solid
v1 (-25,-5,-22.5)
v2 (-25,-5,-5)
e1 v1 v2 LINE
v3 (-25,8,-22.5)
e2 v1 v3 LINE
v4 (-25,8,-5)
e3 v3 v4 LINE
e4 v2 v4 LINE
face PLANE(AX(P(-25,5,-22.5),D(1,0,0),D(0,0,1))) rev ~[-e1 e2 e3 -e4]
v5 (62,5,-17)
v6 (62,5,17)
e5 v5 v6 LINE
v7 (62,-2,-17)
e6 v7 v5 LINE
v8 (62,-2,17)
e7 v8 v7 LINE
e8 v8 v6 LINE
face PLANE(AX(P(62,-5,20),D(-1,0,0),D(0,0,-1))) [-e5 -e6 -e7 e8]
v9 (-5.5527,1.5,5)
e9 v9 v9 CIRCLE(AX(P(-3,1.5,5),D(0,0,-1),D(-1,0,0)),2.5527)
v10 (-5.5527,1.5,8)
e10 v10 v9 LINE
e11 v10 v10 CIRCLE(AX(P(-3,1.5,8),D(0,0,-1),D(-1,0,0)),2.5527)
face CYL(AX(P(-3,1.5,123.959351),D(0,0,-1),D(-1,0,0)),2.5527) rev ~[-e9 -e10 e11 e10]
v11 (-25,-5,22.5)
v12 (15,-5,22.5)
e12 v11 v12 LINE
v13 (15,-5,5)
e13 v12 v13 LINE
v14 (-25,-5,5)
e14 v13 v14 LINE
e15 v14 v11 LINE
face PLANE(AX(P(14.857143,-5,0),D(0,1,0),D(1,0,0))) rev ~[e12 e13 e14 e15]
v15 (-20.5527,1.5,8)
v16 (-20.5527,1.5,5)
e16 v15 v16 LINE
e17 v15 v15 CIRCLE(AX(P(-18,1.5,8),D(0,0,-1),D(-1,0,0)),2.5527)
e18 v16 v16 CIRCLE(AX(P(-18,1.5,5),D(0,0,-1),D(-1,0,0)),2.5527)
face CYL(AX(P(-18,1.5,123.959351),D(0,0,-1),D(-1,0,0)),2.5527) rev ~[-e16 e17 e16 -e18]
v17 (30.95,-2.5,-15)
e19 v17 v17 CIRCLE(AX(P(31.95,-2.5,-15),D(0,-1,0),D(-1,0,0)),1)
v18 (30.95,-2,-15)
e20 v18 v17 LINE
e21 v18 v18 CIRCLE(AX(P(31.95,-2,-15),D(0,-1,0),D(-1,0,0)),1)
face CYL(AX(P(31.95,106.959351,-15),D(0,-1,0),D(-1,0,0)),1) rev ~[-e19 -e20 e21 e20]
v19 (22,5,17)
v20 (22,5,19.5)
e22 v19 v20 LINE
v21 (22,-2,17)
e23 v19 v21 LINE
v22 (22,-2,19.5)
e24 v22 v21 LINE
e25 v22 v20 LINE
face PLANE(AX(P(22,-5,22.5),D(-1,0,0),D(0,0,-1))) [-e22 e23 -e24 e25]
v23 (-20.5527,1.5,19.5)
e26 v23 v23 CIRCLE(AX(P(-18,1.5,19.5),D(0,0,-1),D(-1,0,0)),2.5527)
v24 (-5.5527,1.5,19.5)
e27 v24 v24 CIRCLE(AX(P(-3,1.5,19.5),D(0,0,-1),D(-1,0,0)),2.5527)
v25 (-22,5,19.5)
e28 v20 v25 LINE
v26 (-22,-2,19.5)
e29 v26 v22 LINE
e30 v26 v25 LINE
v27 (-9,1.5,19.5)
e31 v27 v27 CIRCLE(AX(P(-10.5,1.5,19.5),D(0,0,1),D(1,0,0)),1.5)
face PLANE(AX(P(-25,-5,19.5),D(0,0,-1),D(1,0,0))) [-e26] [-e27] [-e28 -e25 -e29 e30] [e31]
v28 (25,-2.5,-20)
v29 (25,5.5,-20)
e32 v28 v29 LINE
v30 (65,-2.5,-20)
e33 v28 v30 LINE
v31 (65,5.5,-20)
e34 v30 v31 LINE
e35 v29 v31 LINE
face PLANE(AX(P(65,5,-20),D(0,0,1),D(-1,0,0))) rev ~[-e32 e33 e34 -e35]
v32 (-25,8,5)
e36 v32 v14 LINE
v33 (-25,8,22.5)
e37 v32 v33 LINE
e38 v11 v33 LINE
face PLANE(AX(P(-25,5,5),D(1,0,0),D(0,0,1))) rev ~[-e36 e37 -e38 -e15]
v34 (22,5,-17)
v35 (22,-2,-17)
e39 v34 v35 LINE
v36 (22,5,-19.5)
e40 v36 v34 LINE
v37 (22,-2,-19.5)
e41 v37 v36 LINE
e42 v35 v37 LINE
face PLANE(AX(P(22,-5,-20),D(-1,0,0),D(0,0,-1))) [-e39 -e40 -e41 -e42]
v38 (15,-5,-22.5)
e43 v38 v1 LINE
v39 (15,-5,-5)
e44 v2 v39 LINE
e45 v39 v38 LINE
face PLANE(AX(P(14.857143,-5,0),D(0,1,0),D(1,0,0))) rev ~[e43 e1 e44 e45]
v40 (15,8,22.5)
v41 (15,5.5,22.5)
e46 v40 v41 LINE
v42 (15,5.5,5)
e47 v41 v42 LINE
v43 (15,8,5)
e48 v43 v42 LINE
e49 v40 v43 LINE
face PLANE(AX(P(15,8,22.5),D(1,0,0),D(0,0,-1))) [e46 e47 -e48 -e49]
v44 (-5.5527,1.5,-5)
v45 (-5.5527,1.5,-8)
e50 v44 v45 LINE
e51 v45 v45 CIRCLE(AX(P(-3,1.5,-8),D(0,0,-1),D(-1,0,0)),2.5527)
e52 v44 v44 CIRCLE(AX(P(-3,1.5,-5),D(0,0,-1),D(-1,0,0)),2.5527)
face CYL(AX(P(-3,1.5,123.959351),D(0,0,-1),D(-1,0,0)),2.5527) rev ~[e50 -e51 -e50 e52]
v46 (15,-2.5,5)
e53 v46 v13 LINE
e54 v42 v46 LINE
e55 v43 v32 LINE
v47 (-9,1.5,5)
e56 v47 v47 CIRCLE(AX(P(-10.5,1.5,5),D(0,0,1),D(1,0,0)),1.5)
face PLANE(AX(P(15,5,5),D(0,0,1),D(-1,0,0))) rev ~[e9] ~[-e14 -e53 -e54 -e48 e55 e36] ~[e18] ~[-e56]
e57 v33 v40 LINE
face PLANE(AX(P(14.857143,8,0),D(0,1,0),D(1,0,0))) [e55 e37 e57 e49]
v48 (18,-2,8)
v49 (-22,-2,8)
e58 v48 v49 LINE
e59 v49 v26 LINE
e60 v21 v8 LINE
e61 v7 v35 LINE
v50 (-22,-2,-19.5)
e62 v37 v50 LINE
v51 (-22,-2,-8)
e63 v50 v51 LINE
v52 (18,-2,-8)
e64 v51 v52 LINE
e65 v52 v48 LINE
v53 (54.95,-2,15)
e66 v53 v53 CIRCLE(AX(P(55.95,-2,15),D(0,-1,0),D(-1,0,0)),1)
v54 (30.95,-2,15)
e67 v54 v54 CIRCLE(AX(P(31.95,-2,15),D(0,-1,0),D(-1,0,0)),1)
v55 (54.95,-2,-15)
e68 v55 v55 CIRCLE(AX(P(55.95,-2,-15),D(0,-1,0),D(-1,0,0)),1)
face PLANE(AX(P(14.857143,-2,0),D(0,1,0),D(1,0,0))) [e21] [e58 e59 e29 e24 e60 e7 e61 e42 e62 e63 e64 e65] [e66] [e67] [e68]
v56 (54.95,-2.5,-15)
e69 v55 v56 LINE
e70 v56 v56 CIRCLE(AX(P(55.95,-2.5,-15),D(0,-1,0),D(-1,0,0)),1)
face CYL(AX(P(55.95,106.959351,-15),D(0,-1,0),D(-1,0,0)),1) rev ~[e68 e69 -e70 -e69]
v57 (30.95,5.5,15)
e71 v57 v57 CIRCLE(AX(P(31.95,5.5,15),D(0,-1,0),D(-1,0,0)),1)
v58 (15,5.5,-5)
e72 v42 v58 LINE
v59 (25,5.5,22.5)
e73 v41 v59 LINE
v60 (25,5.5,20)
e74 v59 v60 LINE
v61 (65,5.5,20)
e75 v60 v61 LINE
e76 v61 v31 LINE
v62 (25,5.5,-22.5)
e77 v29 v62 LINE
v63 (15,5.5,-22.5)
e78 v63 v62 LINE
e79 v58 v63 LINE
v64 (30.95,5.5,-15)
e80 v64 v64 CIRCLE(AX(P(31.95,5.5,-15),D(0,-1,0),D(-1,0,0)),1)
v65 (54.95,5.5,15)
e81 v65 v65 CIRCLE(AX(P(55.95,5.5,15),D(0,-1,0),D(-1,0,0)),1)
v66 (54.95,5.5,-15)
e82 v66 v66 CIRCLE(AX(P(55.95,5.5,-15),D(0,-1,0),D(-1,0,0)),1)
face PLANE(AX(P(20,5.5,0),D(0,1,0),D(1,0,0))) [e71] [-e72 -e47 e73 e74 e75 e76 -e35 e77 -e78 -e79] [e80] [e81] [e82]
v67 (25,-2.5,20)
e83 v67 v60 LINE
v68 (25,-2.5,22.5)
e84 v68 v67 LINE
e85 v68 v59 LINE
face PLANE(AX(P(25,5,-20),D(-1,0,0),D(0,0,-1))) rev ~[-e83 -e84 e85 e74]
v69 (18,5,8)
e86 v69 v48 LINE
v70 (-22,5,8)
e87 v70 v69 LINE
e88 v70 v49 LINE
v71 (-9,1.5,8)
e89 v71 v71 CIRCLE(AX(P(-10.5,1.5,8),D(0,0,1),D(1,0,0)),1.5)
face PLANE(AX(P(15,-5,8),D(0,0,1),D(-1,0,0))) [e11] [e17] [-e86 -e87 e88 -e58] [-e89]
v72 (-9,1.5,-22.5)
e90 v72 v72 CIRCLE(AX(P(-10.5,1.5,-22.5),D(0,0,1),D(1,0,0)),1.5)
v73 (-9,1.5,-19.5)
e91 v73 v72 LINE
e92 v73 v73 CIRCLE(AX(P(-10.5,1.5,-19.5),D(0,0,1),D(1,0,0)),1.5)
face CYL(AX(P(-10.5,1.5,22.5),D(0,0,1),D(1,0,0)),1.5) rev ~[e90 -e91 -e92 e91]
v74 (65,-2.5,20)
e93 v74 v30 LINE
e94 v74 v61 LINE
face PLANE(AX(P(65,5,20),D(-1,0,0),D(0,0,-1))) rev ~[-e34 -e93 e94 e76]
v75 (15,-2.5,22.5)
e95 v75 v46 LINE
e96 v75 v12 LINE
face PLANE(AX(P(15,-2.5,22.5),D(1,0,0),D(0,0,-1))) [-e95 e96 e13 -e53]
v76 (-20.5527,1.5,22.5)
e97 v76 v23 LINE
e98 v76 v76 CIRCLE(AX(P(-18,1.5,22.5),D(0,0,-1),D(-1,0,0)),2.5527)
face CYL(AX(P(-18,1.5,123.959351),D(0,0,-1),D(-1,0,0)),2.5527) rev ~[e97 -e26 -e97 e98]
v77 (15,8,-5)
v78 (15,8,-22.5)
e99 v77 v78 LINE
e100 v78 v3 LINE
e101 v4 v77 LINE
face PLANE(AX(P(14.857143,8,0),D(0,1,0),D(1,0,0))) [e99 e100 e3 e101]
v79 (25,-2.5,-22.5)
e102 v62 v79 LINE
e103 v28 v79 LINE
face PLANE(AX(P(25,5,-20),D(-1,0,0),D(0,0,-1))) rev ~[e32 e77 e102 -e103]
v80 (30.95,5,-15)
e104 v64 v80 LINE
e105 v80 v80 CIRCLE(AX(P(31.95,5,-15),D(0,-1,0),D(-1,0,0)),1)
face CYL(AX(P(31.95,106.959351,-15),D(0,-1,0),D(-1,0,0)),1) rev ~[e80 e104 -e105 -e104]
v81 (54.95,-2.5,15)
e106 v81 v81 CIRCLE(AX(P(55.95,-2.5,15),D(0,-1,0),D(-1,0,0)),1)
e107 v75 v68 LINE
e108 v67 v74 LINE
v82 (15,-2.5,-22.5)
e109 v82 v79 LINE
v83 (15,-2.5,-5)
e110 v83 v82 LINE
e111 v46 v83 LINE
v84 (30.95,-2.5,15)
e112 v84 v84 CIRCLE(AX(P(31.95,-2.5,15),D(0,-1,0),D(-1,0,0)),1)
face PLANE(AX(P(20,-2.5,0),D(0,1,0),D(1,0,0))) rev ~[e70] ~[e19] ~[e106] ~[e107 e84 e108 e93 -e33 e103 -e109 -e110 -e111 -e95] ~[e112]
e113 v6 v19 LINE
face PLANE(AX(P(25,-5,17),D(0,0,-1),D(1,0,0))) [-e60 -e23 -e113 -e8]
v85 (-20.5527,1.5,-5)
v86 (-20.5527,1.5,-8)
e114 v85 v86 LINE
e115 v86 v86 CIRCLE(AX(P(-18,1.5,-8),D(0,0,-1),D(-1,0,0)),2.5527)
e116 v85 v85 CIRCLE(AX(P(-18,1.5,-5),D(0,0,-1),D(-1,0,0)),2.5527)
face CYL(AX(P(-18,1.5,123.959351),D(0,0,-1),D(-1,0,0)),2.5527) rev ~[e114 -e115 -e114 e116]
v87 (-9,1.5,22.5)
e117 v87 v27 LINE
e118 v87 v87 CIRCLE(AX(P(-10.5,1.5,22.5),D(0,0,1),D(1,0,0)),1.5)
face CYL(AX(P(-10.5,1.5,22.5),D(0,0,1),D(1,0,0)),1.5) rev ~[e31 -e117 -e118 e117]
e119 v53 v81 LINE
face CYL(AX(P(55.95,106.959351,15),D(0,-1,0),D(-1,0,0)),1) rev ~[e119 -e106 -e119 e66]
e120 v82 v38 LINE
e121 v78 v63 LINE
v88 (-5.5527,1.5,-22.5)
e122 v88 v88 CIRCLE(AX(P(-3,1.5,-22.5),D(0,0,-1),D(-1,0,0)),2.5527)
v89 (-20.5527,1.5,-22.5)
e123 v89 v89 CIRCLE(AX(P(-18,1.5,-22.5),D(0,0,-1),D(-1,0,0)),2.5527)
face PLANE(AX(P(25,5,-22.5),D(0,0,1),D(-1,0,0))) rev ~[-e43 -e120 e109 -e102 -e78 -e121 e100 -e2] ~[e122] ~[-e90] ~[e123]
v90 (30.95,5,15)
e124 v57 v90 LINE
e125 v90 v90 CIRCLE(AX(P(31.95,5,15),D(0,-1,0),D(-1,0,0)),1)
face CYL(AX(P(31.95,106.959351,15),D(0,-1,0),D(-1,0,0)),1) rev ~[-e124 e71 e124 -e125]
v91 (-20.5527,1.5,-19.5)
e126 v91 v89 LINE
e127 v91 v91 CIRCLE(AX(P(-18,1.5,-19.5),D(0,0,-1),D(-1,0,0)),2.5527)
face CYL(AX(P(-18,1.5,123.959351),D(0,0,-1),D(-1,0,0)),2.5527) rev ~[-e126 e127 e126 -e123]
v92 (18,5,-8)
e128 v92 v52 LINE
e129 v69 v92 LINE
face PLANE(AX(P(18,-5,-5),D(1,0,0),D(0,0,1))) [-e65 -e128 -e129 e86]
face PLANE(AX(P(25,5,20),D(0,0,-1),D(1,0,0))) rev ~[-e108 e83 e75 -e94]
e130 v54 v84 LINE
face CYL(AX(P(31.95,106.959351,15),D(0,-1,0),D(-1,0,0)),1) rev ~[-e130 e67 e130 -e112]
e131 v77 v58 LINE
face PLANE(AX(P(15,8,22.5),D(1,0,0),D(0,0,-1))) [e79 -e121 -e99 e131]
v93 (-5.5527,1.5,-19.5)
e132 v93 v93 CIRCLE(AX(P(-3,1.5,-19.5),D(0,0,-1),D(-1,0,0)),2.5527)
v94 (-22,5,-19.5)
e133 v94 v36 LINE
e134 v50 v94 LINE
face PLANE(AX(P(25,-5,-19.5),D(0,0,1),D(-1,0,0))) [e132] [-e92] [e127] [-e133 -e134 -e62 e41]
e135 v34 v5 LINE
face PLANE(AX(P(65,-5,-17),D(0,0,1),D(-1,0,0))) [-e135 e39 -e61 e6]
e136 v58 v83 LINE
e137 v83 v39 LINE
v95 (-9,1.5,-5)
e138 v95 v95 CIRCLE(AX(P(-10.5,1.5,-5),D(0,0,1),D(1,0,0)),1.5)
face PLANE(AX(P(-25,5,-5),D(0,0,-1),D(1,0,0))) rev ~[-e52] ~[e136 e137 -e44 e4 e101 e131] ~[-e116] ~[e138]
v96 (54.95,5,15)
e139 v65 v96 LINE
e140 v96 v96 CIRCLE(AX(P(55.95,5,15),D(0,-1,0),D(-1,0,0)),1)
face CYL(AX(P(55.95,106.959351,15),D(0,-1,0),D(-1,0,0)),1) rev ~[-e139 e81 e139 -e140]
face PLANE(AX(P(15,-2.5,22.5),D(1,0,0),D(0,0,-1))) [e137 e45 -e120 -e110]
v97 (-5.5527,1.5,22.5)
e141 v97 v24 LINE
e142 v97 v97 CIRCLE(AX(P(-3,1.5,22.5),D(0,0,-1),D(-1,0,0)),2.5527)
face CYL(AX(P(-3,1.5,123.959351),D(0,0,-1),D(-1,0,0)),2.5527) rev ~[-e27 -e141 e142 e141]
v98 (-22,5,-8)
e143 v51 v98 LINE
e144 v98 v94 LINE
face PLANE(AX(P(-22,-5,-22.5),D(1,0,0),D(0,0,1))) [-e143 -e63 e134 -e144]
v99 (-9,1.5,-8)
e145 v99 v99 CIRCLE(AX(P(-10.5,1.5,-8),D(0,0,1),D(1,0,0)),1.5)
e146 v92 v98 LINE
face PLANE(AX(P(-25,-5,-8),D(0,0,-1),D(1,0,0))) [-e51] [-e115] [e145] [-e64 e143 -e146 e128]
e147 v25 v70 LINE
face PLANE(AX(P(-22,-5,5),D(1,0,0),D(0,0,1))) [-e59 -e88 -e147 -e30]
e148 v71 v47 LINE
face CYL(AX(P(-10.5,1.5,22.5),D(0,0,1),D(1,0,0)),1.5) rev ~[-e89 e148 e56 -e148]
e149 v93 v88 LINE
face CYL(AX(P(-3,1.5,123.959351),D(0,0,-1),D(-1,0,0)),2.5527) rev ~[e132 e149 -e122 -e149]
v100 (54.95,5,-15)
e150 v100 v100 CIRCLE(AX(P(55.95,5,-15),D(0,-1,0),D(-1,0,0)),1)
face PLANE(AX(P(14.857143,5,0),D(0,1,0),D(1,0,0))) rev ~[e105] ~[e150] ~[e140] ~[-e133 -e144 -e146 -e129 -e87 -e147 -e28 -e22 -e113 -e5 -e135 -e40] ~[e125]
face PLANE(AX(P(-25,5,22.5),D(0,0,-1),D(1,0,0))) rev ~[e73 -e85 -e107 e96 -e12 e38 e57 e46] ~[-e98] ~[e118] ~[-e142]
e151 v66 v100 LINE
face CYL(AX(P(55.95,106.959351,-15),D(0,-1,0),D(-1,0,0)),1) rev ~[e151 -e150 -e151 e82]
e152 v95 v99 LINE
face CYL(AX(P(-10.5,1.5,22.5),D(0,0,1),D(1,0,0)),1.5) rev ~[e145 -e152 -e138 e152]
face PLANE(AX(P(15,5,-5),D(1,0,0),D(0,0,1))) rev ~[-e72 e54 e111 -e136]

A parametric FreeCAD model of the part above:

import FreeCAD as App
import Part
import Sketcher

V = App.Vector


def faces_at(feature, points):
    """Names of the faces that lie closest to the given points."""
    faces = feature.Shape.Faces
    near = lambda p: min(range(len(faces)), key=lambda i: faces[i].distToShape(Part.Vertex(*p))[0])
    return sorted({f"Face{near(p) + 1}" for p in points})


def add_polygon(sketch, points):
    """Adds a closed chain of lines whose ends are joined by coincident constraints."""
    first, n = sketch.GeometryCount, len(points)
    for a, b in zip(points, points[1:] + points[:1]):
        sketch.addGeometry(Part.LineSegment(App.Vector(*a, 0), App.Vector(*b, 0)), False)
    for i in range(n):
        sketch.addConstraint(Sketcher.Constraint("Coincident", first + i, 2, first + (i + 1) % n, 1))

doc = App.newDocument("Part")
body = doc.addObject("PartDesign::Body", "Body")

sketch1 = body.newObject("Sketcher::SketchObject", "Sketch")
sketch1.AttachmentSupport = (doc.getObject("XZ_Plane"), [""])
sketch1.MapMode = "FlatFace"
add_polygon(sketch1, [(-25, 5), (-25, 22.5), (25, 22.5), (25, 20), (65, 20), (65, -20), (25, -20), (25, -22.5), (-25, -22.5), (-25, -5), (15, -5), (15, 5)])
sketch1.addConstraint(Sketcher.Constraint("Vertical", 0))
sketch1.addConstraint(Sketcher.Constraint("Horizontal", 1))
sketch1.addConstraint(Sketcher.Constraint("Vertical", 2))
sketch1.addConstraint(Sketcher.Constraint("Horizontal", 3))
sketch1.addConstraint(Sketcher.Constraint("Vertical", 4))
sketch1.addConstraint(Sketcher.Constraint("Horizontal", 5))
sketch1.addConstraint(Sketcher.Constraint("Vertical", 6))
sketch1.addConstraint(Sketcher.Constraint("Horizontal", 7))
sketch1.addConstraint(Sketcher.Constraint("Vertical", 8))
sketch1.addConstraint(Sketcher.Constraint("Horizontal", 9))
sketch1.addConstraint(Sketcher.Constraint("Vertical", 10))
sketch1.addConstraint(Sketcher.Constraint("Horizontal", 11))
sketch1.addConstraint(Sketcher.Constraint("Symmetric", 0, 2, 6, 2, -1, 1))
sketch1.addConstraint(Sketcher.Constraint("Symmetric", 2, 2, 5, 2, -1))
sketch1.addConstraint(Sketcher.Constraint("Symmetric", 8, 2, 11, 2, -1))
sketch1.addConstraint(Sketcher.Constraint("Equal", 5, 9))
sketch1.addConstraint(Sketcher.Constraint("Equal", 11, 4))
sketch1.addConstraint(Sketcher.Constraint("DistanceX", 1, 1, 1, 2, 50.0))
sketch1.addConstraint(Sketcher.Constraint("DistanceX", 3, 1, 3, 2, 40.0))
sketch1.addConstraint(Sketcher.Constraint("DistanceY", 10, 1, 10, 2, 10.0))
sketch1.addConstraint(Sketcher.Constraint("DistanceY", 0, 1, 0, 2, 17.5))
pad1 = body.newObject("PartDesign::Pad", "Pad")
pad1.Profile = sketch1
pad1.Type = "TwoLengths"
pad1.Length = 5
pad1.Length2 = 5
pad1.Reversed = True
doc.recompute()

thickness = body.newObject("PartDesign::Thickness", "Thickness")
thickness.Base = (pad1, faces_at(pad1, [(20, 5, 0)]))
thickness.Value = 3
thickness.Reversed = True
thickness.Join = "Intersection"

sketch2 = body.newObject("Sketcher::SketchObject", "Sketch001")
sketch2.AttachmentSupport = (doc.getObject("XZ_Plane"), [""])
sketch2.MapMode = "FlatFace"
sketch2.AttachmentOffset = App.Placement(V(0, 0, -5), App.Rotation())
add_polygon(sketch2, [(-25, 5), (-25, 22.5), (25, 22.5), (25, 20), (65, 20), (65, -20), (25, -20), (25, -22.5), (-25, -22.5), (-25, -5), (15, -5), (15, 5)])
sketch2.addConstraint(Sketcher.Constraint("Vertical", 0))
sketch2.addConstraint(Sketcher.Constraint("Horizontal", 1))
sketch2.addConstraint(Sketcher.Constraint("Vertical", 2))
sketch2.addConstraint(Sketcher.Constraint("Horizontal", 3))
sketch2.addConstraint(Sketcher.Constraint("Vertical", 4))
sketch2.addConstraint(Sketcher.Constraint("Horizontal", 5))
sketch2.addConstraint(Sketcher.Constraint("Vertical", 6))
sketch2.addConstraint(Sketcher.Constraint("Horizontal", 7))
sketch2.addConstraint(Sketcher.Constraint("Vertical", 8))
sketch2.addConstraint(Sketcher.Constraint("Horizontal", 9))
sketch2.addConstraint(Sketcher.Constraint("Vertical", 10))
sketch2.addConstraint(Sketcher.Constraint("Horizontal", 11))
sketch2.addConstraint(Sketcher.Constraint("Symmetric", 0, 2, 6, 2, -1, 1))
sketch2.addConstraint(Sketcher.Constraint("Symmetric", 2, 2, 5, 2, -1))
sketch2.addConstraint(Sketcher.Constraint("Symmetric", 8, 2, 11, 2, -1))
sketch2.addConstraint(Sketcher.Constraint("Equal", 5, 9))
sketch2.addConstraint(Sketcher.Constraint("Equal", 11, 4))
sketch2.addConstraint(Sketcher.Constraint("DistanceX", 1, 1, 1, 2, 50.0))
sketch2.addConstraint(Sketcher.Constraint("DistanceX", 3, 1, 3, 2, 40.0))
sketch2.addConstraint(Sketcher.Constraint("DistanceY", 10, 1, 10, 2, 10.0))
sketch2.addConstraint(Sketcher.Constraint("DistanceY", 0, 1, 0, 2, 17.5))
pad2 = body.newObject("PartDesign::Pad", "Pad001")
pad2.Profile = sketch2
pad2.Length = 3
pad2.Reversed = True

sketch3 = body.newObject("Sketcher::SketchObject", "Sketch002")
sketch3.AttachmentSupport = (doc.getObject("XY_Plane"), [""])
sketch3.MapMode = "FlatFace"
sketch3.AttachmentOffset = App.Placement(V(0, 0, 22.5), App.Rotation())
sketch3.addGeometry(Part.Circle(V(-10.5, 1.5, 0), V(0, 0, 1), 1.5), False)
sketch3.addConstraint(Sketcher.Constraint("Diameter", 0, 3.0))
sketch3.addConstraint(Sketcher.Constraint("DistanceX", 0, 3, -1, 1, 10.5))
sketch3.addConstraint(Sketcher.Constraint("DistanceY", -1, 1, 0, 3, 1.5))
pocket1 = body.newObject("PartDesign::Pocket", "Pocket")
pocket1.Profile = sketch3
pocket1.Length = 100

sketch4 = body.newObject("Sketcher::SketchObject", "Sketch003")
sketch4.AttachmentSupport = (doc.getObject("XY_Plane"), [""])
sketch4.MapMode = "FlatFace"
sketch4.AttachmentOffset = App.Placement(V(0, 0, 22.5), App.Rotation())
sketch4.addGeometry(Part.Circle(V(-3, 1.5, 0), V(0, 0, 1), 2.6), False)
sketch4.addGeometry(Part.Circle(V(-18, 1.5, 0), V(0, 0, 1), 2.6), False)
sketch4.addConstraint(Sketcher.Constraint("Equal", 0, 1))
sketch4.addConstraint(Sketcher.Constraint("Horizontal", 0, 3, 1, 3))
sketch4.addConstraint(Sketcher.Constraint("DistanceX", 0, 3, -1, 1, 3.0))
sketch4.addConstraint(Sketcher.Constraint("DistanceX", 1, 3, -1, 1, 18.0))
sketch4.addConstraint(Sketcher.Constraint("Diameter", 0, 5.1054))
sketch4.addConstraint(Sketcher.Constraint("DistanceY", -1, 1, 0, 3, 1.5))
doc.recompute()
hole = body.newObject("PartDesign::Hole", "Hole")
hole.Profile = sketch4
hole.ThreadType = "None"
hole.Diameter = 5.1054
hole.DepthType = "ThroughAll"

sketch5 = body.newObject("Sketcher::SketchObject", "Sketch004")
sketch5.AttachmentSupport = (doc.getObject("XY_Plane"), [""])
sketch5.MapMode = "FlatFace"
sketch5.AttachmentOffset = App.Placement(V(0, 0, 20), App.Rotation())
add_polygon(sketch5, [(25, 8), (25, 5.5), (65, 5.5), (65, 8)])
add_polygon(sketch5, [(25, -2.5), (25, -5), (65, -5), (65, -2.5)])
sketch5.addConstraint(Sketcher.Constraint("Vertical", 0))
sketch5.addConstraint(Sketcher.Constraint("Horizontal", 1))
sketch5.addConstraint(Sketcher.Constraint("Vertical", 2))
sketch5.addConstraint(Sketcher.Constraint("Horizontal", 3))
sketch5.addConstraint(Sketcher.Constraint("Vertical", 4))
sketch5.addConstraint(Sketcher.Constraint("Horizontal", 5))
sketch5.addConstraint(Sketcher.Constraint("Vertical", 6))
sketch5.addConstraint(Sketcher.Constraint("Horizontal", 7))
sketch5.addConstraint(Sketcher.Constraint("Vertical", 3, 2, 4, 2))
sketch5.addConstraint(Sketcher.Constraint("Vertical", 2, 2, 5, 2))
sketch5.addConstraint(Sketcher.Constraint("Equal", 2, 4))
sketch5.addConstraint(Sketcher.Constraint("DistanceX", 1, 1, 1, 2, 40.0))
sketch5.addConstraint(Sketcher.Constraint("DistanceY", 0, 2, 0, 1, 2.5))
sketch5.addConstraint(Sketcher.Constraint("DistanceX", -1, 1, 0, 2, 25.0))
sketch5.addConstraint(Sketcher.Constraint("DistanceY", -1, 1, 2, 2, 8.0))
sketch5.addConstraint(Sketcher.Constraint("DistanceY", 4, 2, -1, 1, 5.0))
pocket2 = body.newObject("PartDesign::Pocket", "Pocket001")
pocket2.Profile = sketch5
pocket2.Type = "ThroughAll"

sketch6 = body.newObject("Sketcher::SketchObject", "Sketch005")
sketch6.AttachmentSupport = (doc.getObject("XZ_Plane"), [""])
sketch6.MapMode = "FlatFace"
sketch6.AttachmentOffset = App.Placement(V(0, 0, -8), App.Rotation())
add_polygon(sketch6, [(15, -22), (15, 22), (25, 22), (25, -22)])
sketch6.addConstraint(Sketcher.Constraint("Vertical", 0))
sketch6.addConstraint(Sketcher.Constraint("Horizontal", 1))
sketch6.addConstraint(Sketcher.Constraint("Vertical", 2))
sketch6.addConstraint(Sketcher.Constraint("Horizontal", 3))
sketch6.addConstraint(Sketcher.Constraint("DistanceX", 1, 1, 1, 2, 10.0))
sketch6.addConstraint(Sketcher.Constraint("DistanceY", 0, 1, 0, 2, 45.0))
sketch6.addConstraint(Sketcher.Constraint("DistanceX", -1, 1, 0, 2, 15.0))
sketch6.addConstraint(Sketcher.Constraint("DistanceY", -1, 1, 0, 2, 22.5))
pocket3 = body.newObject("PartDesign::Pocket", "Pocket002")
pocket3.Profile = sketch6
pocket3.Length = 2.5
pocket3.Reversed = True

sketch7 = body.newObject("Sketcher::SketchObject", "Sketch006")
sketch7.AttachmentSupport = (doc.getObject("XZ_Plane"), [""])
sketch7.MapMode = "FlatFace"
sketch7.AttachmentOffset = App.Placement(V(0, 0, 2.5), App.Rotation())
add_polygon(sketch7, [(15, -22), (15, 22), (25, 22), (25, -22)])
sketch7.addConstraint(Sketcher.Constraint("Vertical", 0))
sketch7.addConstraint(Sketcher.Constraint("Horizontal", 1))
sketch7.addConstraint(Sketcher.Constraint("Vertical", 2))
sketch7.addConstraint(Sketcher.Constraint("Horizontal", 3))
sketch7.addConstraint(Sketcher.Constraint("DistanceX", 1, 1, 1, 2, 10.0))
sketch7.addConstraint(Sketcher.Constraint("DistanceY", 0, 1, 0, 2, 45.0))
sketch7.addConstraint(Sketcher.Constraint("DistanceX", -1, 1, 0, 2, 15.0))
sketch7.addConstraint(Sketcher.Constraint("DistanceY", -1, 1, 0, 2, 22.5))
pocket4 = body.newObject("PartDesign::Pocket", "Pocket003")
pocket4.Profile = sketch7
pocket4.Length = 2.5
pocket4.Reversed = True

sketch8 = body.newObject("Sketcher::SketchObject", "Sketch007")
sketch8.AttachmentSupport = (doc.getObject("XZ_Plane"), [""])
sketch8.MapMode = "FlatFace"
sketch8.AttachmentOffset = App.Placement(V(0, 0, -5.5), App.Rotation())
sketch8.addGeometry(Part.Circle(V(32, -15, 0), V(0, 0, 1), 1), False)
sketch8.addGeometry(Part.Circle(V(32, 15, 0), V(0, 0, 1), 1), False)
sketch8.addGeometry(Part.Circle(V(56, 15, 0), V(0, 0, 1), 1), False)
sketch8.addGeometry(Part.Circle(V(56, -15, 0), V(0, 0, 1), 1), False)
sketch8.addConstraint(Sketcher.Constraint("Equal", 0, 1))
sketch8.addConstraint(Sketcher.Constraint("Equal", 1, 2))
sketch8.addConstraint(Sketcher.Constraint("Equal", 2, 3))
sketch8.addConstraint(Sketcher.Constraint("Symmetric", 0, 3, 1, 3, -1))
sketch8.addConstraint(Sketcher.Constraint("Symmetric", 2, 3, 3, 3, -1))
sketch8.addConstraint(Sketcher.Constraint("Horizontal", 1, 3, 2, 3))
sketch8.addConstraint(Sketcher.Constraint("Diameter", 0, 2.0))
sketch8.addConstraint(Sketcher.Constraint("DistanceY", 0, 3, -1, 1, 15.0))
sketch8.addConstraint(Sketcher.Constraint("DistanceX", 1, 3, 2, 3, 24.0))
sketch8.addConstraint(Sketcher.Constraint("DistanceX", -1, 1, 0, 3, 31.95))
doc.recompute()
hole2 = body.newObject("PartDesign::Hole", "Hole001")
hole2.Profile = sketch8
hole2.ThreadType = "None"
hole2.Diameter = 2
hole2.DepthType = "ThroughAll"
hole2.Reversed = True

doc.recompute()
